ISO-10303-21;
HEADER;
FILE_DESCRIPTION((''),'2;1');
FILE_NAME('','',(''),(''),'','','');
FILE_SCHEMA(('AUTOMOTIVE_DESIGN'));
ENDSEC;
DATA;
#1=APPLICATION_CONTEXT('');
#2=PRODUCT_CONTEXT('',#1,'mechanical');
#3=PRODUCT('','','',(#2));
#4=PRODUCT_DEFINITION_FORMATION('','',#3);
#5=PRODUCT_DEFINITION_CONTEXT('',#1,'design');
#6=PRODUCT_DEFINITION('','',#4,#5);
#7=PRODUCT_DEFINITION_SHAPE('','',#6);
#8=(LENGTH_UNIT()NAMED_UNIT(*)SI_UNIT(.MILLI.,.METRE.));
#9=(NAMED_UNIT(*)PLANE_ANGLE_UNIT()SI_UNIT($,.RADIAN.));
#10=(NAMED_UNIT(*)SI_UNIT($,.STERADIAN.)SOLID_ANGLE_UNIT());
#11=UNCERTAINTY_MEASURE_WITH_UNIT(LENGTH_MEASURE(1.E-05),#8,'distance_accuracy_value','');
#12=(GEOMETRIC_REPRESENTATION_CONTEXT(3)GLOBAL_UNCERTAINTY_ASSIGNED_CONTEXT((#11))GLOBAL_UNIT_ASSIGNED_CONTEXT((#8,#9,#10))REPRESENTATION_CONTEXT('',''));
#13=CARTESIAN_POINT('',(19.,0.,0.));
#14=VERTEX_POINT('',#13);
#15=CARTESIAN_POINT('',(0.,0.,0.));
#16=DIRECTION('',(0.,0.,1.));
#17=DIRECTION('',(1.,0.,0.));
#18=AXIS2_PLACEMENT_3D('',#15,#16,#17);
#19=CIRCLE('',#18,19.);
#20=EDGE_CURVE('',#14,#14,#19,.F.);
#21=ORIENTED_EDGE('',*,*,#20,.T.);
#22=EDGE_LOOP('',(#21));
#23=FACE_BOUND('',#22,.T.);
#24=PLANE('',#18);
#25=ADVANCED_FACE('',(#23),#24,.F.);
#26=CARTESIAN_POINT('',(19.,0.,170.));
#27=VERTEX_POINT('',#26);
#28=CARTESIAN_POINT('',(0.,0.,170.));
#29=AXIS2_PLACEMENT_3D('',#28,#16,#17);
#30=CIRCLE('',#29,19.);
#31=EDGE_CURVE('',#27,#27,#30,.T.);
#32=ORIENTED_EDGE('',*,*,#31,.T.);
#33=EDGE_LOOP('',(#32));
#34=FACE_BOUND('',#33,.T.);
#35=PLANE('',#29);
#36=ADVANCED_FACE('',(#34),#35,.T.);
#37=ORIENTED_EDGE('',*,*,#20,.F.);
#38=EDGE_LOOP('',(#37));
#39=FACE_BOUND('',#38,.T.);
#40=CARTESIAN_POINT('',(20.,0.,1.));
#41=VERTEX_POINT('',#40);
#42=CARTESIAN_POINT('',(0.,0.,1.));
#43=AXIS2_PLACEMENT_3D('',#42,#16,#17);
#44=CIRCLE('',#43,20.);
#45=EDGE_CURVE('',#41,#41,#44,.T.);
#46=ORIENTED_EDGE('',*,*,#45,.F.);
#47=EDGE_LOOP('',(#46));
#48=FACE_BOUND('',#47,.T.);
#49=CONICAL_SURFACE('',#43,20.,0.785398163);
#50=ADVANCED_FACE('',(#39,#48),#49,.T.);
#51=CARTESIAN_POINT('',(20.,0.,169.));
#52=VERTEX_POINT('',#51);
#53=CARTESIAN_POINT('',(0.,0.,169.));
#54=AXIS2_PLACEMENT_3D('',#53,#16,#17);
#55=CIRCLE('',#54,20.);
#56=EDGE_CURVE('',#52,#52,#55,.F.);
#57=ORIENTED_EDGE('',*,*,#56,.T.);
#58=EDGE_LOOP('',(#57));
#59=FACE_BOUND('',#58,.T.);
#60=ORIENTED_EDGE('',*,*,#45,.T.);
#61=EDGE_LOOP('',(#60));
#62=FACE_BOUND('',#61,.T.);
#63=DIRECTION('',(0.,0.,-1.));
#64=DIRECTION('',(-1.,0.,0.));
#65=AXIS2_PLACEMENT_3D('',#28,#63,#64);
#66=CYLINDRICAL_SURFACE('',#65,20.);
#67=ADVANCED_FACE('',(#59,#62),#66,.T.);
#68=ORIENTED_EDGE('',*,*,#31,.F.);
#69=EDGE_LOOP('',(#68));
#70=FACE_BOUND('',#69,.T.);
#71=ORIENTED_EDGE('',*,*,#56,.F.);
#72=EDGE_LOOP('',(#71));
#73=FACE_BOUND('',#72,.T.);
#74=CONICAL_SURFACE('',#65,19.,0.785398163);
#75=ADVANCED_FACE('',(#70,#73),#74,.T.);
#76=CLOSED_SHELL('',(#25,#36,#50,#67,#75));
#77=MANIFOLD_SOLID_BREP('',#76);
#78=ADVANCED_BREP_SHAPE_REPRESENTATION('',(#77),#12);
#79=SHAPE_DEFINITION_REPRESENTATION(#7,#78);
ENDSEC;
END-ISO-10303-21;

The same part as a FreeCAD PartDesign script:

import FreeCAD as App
import Part
import Sketcher
Q = App.Units.Quantity


def edges_at(feature, points):
    """Names of the edges that pass closest to the given points."""
    edges = feature.Shape.Edges
    near = lambda p: min(range(len(edges)), key=lambda i: edges[i].distToShape(Part.Vertex(*p))[0])
    return sorted({f"Edge{near(p) + 1}" for p in points})

doc = App.newDocument("Part")
body = doc.addObject("PartDesign::Body", "Body")

sketch1 = body.newObject("Sketcher::SketchObject", "Sketch")
sketch1.AttachmentSupport = (doc.getObject("XY_Plane"), [""])
sketch1.MapMode = "FlatFace"
sketch1.addGeometry(Part.Circle(App.Vector(0, 0, 0), App.Vector(0, 0, 1), 20), False)
sketch1.addConstraint([
    Sketcher.Constraint("Coincident", 0, 3, -1, 1),
    Sketcher.Constraint("Diameter", 0, Q("40 mm")),
])
pad1 = body.newObject("PartDesign::Pad", "Pad")
pad1.Profile = sketch1
pad1.Length = 170
doc.recompute()

chamfer = body.newObject("PartDesign::Chamfer", "Chamfer")
chamfer.Base = (pad1, edges_at(pad1, [(-20, 0, 0), (-20, 0, 170)]))
chamfer.Size = 1

doc.recompute()
